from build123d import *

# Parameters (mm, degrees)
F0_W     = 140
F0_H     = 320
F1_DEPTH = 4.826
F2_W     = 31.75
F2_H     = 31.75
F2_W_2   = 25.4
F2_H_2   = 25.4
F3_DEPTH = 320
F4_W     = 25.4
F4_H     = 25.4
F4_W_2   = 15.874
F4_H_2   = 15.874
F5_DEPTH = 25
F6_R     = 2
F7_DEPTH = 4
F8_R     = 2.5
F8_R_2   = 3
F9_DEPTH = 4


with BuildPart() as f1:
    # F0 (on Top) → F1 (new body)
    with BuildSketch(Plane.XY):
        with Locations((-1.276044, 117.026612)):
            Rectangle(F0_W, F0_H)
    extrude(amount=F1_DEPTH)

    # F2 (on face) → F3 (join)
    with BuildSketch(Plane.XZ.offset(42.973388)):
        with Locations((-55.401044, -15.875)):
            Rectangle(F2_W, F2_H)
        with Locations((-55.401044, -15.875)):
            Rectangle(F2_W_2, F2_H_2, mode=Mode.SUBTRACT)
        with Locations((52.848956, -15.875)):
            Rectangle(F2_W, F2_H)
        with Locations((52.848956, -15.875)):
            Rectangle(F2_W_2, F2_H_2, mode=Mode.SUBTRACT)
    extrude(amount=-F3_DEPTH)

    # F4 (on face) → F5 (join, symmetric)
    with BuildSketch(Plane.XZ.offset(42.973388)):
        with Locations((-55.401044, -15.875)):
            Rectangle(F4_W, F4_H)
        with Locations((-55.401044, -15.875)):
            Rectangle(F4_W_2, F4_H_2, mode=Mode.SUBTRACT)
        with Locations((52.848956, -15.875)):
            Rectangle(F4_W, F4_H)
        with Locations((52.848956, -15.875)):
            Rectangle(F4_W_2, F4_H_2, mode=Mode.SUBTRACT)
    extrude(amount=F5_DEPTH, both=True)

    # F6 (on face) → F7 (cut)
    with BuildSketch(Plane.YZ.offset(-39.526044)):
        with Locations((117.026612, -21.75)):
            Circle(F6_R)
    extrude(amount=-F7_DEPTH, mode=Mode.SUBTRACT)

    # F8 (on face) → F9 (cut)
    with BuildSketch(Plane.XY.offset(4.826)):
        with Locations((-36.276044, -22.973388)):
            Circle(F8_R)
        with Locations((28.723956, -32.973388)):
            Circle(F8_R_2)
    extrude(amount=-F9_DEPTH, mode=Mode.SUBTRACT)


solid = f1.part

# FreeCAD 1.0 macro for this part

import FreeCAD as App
import Part
import Sketcher
from FreeCAD import Vector
Q = App.Units.Quantity


def add_polygon(sketch, points):
    """Adds a closed chain of lines whose ends are joined by coincident constraints."""
    first, n = sketch.GeometryCount, len(points)
    for a, b in zip(points, points[1:] + points[:1]):
        sketch.addGeometry(Part.LineSegment(App.Vector(*a, 0), App.Vector(*b, 0)), False)
    for i in range(n):
        sketch.addConstraint(Sketcher.Constraint("Coincident", first + i, 2, first + (i + 1) % n, 1))

doc = App.newDocument("Part")
body = doc.addObject("PartDesign::Body", "Body")

sketch1 = body.newObject("Sketcher::SketchObject", "Sketch")
sketch1.AttachmentSupport = (doc.getObject("XY_Plane"), [""])
sketch1.MapMode = "FlatFace"
add_polygon(sketch1, [(-71, 277), (-71, -43), (69, -43), (69, 277)])
sketch1.addConstraint([
    Sketcher.Constraint("Vertical", 0),
    Sketcher.Constraint("Horizontal", 1),
    Sketcher.Constraint("Vertical", 2),
    Sketcher.Constraint("Horizontal", 3),
    Sketcher.Constraint("DistanceX", 1, 1, 1, 2, Q("140 mm")),
    Sketcher.Constraint("DistanceY", 0, 2, 0, 1, Q("320 mm")),
    Sketcher.Constraint("DistanceY", -1, 1, 2, 2, Q("277.026612 mm")),
    Sketcher.Constraint("DistanceX", 0, 2, -1, 1, Q("71.276044 mm")),
])
pad1 = body.newObject("PartDesign::Pad", "Pad")
pad1.Profile = sketch1
pad1.Length = 4.826

sketch2 = body.newObject("Sketcher::SketchObject", "Sketch001")
sketch2.AttachmentSupport = (doc.getObject("XZ_Plane"), [""])
sketch2.MapMode = "FlatFace"
sketch2.AttachmentOffset = App.Placement(Vector(0, 0, 42.973388), App.Rotation())
add_polygon(sketch2, [(-71, 0), (-71, -32), (-40, -32), (-40, 0)])
add_polygon(sketch2, [(-43, -29), (-68, -29), (-68, -3), (-43, -3)])
add_polygon(sketch2, [(37, 0), (37, -32), (69, -32), (69, 0)])
add_polygon(sketch2, [(66, -29), (40, -29), (40, -3), (66, -3)])
sketch2.addConstraint([
    Sketcher.Constraint("Vertical", 0),
    Sketcher.Constraint("Horizontal", 1),
    Sketcher.Constraint("Vertical", 2),
    Sketcher.Constraint("Horizontal", 3),
    Sketcher.Constraint("Horizontal", 4),
    Sketcher.Constraint("Vertical", 5),
    Sketcher.Constraint("Horizontal", 6),
    Sketcher.Constraint("Vertical", 7),
    Sketcher.Constraint("Vertical", 8),
    Sketcher.Constraint("Horizontal", 9),
    Sketcher.Constraint("Vertical", 10),
    Sketcher.Constraint("Horizontal", 11),
    Sketcher.Constraint("Horizontal", 12),
    Sketcher.Constraint("Vertical", 13),
    Sketcher.Constraint("Horizontal", 14),
    Sketcher.Constraint("Vertical", 15),
    Sketcher.Constraint("PointOnObject", 2, 2, -1),
    Sketcher.Constraint("PointOnObject", 10, 2, -1),
    Sketcher.Constraint("Horizontal", 1, 2, 8, 2),
    Sketcher.Constraint("Horizontal", 7, 2, 12, 2),
    Sketcher.Constraint("Horizontal", 6, 2, 13, 2),
    Sketcher.Constraint("Equal", 3, 9),
    Sketcher.Constraint("Equal", 6, 12),
    Sketcher.Constraint("Equal", 11, 0),
    Sketcher.Constraint("Equal", 14, 5),
    Sketcher.Constraint("DistanceX", 4, 2, 4, 1, Q("25.4 mm")),
    Sketcher.Constraint("DistanceX", 1, 1, 1, 2, Q("31.75 mm")),
    Sketcher.Constraint("DistanceX", 1, 2, 8, 2, Q("76.5 mm")),
    Sketcher.Constraint("DistanceY", 4, 2, -1, 1, Q("28.575 mm")),
    Sketcher.Constraint("DistanceX", 0, 2, 4, 2, Q("3.175 mm")),
    Sketcher.Constraint("DistanceX", 8, 2, 12, 2, Q("3.175 mm")),
    Sketcher.Constraint("DistanceX", 0, 2, -1, 1, Q("71.276044 mm")),
])
pad2 = body.newObject("PartDesign::Pad", "Pad001")
pad2.Profile = sketch2
pad2.Length = 320
pad2.Reversed = True

sketch3 = body.newObject("Sketcher::SketchObject", "Sketch002")
sketch3.AttachmentSupport = (doc.getObject("XZ_Plane"), [""])
sketch3.MapMode = "FlatFace"
sketch3.AttachmentOffset = App.Placement(Vector(0, 0, 42.973388), App.Rotation())
add_polygon(sketch3, [(-68, -3), (-68, -29), (-43, -29), (-43, -3)])
add_polygon(sketch3, [(-47, -24), (-63, -24), (-63, -8), (-47, -8)])
add_polygon(sketch3, [(40, -3), (40, -29), (66, -29), (66, -3)])
add_polygon(sketch3, [(61, -24), (45, -24), (45, -8), (61, -8)])
sketch3.addConstraint([
    Sketcher.Constraint("Vertical", 0),
    Sketcher.Constraint("Horizontal", 1),
    Sketcher.Constraint("Vertical", 2),
    Sketcher.Constraint("Horizontal", 3),
    Sketcher.Constraint("Horizontal", 4),
    Sketcher.Constraint("Vertical", 5),
    Sketcher.Constraint("Horizontal", 6),
    Sketcher.Constraint("Vertical", 7),
    Sketcher.Constraint("Vertical", 8),
    Sketcher.Constraint("Horizontal", 9),
    Sketcher.Constraint("Vertical", 10),
    Sketcher.Constraint("Horizontal", 11),
    Sketcher.Constraint("Horizontal", 12),
    Sketcher.Constraint("Vertical", 13),
    Sketcher.Constraint("Horizontal", 14),
    Sketcher.Constraint("Vertical", 15),
    Sketcher.Constraint("Horizontal", 1, 2, 8, 2),
    Sketcher.Constraint("Horizontal", 3, 2, 10, 2),
    Sketcher.Constraint("Horizontal", 7, 2, 12, 2),
    Sketcher.Constraint("Horizontal", 6, 2, 13, 2),
    Sketcher.Constraint("Equal", 3, 9),
    Sketcher.Constraint("Equal", 6, 12),
    Sketcher.Constraint("Equal", 11, 0),
    Sketcher.Constraint("Equal", 14, 5),
    Sketcher.Constraint("DistanceX", 1, 1, 1, 2, Q("25.4 mm")),
    Sketcher.Constraint("DistanceX", 4, 2, 4, 1, Q("15.874 mm")),
    Sketcher.Constraint("DistanceX", 1, 2, 8, 2, Q("82.85 mm")),
    Sketcher.Constraint("DistanceY", 0, 2, -1, 1, Q("28.575 mm")),
    Sketcher.Constraint("DistanceY", 4, 2, -1, 1, Q("23.812 mm")),
    Sketcher.Constraint("DistanceX", 0, 2, 4, 2, Q("4.763 mm")),
    Sketcher.Constraint("DistanceX", 8, 2, 12, 2, Q("4.763 mm")),
    Sketcher.Constraint("DistanceX", 0, 2, -1, 1, Q("68.101044 mm")),
])
pad3 = body.newObject("PartDesign::Pad", "Pad002")
pad3.Profile = sketch3
pad3.Length = 50
pad3.Midplane = True

sketch4 = body.newObject("Sketcher::SketchObject", "Sketch003")
sketch4.AttachmentSupport = (doc.getObject("YZ_Plane"), [""])
sketch4.MapMode = "FlatFace"
sketch4.AttachmentOffset = App.Placement(Vector(0, 0, -39.526044), App.Rotation())
sketch4.addGeometry(Part.Circle(Vector(117, -21.8, 0), Vector(0, 0, 1), 2), False)
sketch4.addConstraint([
    Sketcher.Constraint("Diameter", 0, Q("4 mm")),
    Sketcher.Constraint("DistanceY", 0, 3, -1, 1, Q("21.75 mm")),
    Sketcher.Constraint("DistanceX", -1, 1, 0, 3, Q("117.026612 mm")),
])
pocket1 = body.newObject("PartDesign::Pocket", "Pocket")
pocket1.Profile = sketch4
pocket1.Length = 4

sketch5 = body.newObject("Sketcher::SketchObject", "Sketch004")
sketch5.AttachmentSupport = (doc.getObject("XY_Plane"), [""])
sketch5.MapMode = "FlatFace"
sketch5.AttachmentOffset = App.Placement(Vector(0, 0, 4.826), App.Rotation())
sketch5.addGeometry([
    Part.Circle(Vector(-36.3, -23, 0), Vector(0, 0, 1), 2.5),
    Part.Circle(Vector(28.7, -33, 0), Vector(0, 0, 1), 3),
], False)
sketch5.addConstraint([
    Sketcher.Constraint("Diameter", 0, Q("5 mm")),
    Sketcher.Constraint("Diameter", 1, Q("6 mm")),
    Sketcher.Constraint("DistanceX", 0, 3, 1, 3, Q("65 mm")),
    Sketcher.Constraint("DistanceY", 1, 3, 0, 3, Q("10 mm")),
    Sketcher.Constraint("DistanceY", 0, 3, -1, 1, Q("22.973388 mm")),
    Sketcher.Constraint("DistanceX", 0, 3, -1, 1, Q("36.276044 mm")),
])
pocket2 = body.newObject("PartDesign::Pocket", "Pocket001")
pocket2.Profile = sketch5
pocket2.Length = 4

doc.recompute()
